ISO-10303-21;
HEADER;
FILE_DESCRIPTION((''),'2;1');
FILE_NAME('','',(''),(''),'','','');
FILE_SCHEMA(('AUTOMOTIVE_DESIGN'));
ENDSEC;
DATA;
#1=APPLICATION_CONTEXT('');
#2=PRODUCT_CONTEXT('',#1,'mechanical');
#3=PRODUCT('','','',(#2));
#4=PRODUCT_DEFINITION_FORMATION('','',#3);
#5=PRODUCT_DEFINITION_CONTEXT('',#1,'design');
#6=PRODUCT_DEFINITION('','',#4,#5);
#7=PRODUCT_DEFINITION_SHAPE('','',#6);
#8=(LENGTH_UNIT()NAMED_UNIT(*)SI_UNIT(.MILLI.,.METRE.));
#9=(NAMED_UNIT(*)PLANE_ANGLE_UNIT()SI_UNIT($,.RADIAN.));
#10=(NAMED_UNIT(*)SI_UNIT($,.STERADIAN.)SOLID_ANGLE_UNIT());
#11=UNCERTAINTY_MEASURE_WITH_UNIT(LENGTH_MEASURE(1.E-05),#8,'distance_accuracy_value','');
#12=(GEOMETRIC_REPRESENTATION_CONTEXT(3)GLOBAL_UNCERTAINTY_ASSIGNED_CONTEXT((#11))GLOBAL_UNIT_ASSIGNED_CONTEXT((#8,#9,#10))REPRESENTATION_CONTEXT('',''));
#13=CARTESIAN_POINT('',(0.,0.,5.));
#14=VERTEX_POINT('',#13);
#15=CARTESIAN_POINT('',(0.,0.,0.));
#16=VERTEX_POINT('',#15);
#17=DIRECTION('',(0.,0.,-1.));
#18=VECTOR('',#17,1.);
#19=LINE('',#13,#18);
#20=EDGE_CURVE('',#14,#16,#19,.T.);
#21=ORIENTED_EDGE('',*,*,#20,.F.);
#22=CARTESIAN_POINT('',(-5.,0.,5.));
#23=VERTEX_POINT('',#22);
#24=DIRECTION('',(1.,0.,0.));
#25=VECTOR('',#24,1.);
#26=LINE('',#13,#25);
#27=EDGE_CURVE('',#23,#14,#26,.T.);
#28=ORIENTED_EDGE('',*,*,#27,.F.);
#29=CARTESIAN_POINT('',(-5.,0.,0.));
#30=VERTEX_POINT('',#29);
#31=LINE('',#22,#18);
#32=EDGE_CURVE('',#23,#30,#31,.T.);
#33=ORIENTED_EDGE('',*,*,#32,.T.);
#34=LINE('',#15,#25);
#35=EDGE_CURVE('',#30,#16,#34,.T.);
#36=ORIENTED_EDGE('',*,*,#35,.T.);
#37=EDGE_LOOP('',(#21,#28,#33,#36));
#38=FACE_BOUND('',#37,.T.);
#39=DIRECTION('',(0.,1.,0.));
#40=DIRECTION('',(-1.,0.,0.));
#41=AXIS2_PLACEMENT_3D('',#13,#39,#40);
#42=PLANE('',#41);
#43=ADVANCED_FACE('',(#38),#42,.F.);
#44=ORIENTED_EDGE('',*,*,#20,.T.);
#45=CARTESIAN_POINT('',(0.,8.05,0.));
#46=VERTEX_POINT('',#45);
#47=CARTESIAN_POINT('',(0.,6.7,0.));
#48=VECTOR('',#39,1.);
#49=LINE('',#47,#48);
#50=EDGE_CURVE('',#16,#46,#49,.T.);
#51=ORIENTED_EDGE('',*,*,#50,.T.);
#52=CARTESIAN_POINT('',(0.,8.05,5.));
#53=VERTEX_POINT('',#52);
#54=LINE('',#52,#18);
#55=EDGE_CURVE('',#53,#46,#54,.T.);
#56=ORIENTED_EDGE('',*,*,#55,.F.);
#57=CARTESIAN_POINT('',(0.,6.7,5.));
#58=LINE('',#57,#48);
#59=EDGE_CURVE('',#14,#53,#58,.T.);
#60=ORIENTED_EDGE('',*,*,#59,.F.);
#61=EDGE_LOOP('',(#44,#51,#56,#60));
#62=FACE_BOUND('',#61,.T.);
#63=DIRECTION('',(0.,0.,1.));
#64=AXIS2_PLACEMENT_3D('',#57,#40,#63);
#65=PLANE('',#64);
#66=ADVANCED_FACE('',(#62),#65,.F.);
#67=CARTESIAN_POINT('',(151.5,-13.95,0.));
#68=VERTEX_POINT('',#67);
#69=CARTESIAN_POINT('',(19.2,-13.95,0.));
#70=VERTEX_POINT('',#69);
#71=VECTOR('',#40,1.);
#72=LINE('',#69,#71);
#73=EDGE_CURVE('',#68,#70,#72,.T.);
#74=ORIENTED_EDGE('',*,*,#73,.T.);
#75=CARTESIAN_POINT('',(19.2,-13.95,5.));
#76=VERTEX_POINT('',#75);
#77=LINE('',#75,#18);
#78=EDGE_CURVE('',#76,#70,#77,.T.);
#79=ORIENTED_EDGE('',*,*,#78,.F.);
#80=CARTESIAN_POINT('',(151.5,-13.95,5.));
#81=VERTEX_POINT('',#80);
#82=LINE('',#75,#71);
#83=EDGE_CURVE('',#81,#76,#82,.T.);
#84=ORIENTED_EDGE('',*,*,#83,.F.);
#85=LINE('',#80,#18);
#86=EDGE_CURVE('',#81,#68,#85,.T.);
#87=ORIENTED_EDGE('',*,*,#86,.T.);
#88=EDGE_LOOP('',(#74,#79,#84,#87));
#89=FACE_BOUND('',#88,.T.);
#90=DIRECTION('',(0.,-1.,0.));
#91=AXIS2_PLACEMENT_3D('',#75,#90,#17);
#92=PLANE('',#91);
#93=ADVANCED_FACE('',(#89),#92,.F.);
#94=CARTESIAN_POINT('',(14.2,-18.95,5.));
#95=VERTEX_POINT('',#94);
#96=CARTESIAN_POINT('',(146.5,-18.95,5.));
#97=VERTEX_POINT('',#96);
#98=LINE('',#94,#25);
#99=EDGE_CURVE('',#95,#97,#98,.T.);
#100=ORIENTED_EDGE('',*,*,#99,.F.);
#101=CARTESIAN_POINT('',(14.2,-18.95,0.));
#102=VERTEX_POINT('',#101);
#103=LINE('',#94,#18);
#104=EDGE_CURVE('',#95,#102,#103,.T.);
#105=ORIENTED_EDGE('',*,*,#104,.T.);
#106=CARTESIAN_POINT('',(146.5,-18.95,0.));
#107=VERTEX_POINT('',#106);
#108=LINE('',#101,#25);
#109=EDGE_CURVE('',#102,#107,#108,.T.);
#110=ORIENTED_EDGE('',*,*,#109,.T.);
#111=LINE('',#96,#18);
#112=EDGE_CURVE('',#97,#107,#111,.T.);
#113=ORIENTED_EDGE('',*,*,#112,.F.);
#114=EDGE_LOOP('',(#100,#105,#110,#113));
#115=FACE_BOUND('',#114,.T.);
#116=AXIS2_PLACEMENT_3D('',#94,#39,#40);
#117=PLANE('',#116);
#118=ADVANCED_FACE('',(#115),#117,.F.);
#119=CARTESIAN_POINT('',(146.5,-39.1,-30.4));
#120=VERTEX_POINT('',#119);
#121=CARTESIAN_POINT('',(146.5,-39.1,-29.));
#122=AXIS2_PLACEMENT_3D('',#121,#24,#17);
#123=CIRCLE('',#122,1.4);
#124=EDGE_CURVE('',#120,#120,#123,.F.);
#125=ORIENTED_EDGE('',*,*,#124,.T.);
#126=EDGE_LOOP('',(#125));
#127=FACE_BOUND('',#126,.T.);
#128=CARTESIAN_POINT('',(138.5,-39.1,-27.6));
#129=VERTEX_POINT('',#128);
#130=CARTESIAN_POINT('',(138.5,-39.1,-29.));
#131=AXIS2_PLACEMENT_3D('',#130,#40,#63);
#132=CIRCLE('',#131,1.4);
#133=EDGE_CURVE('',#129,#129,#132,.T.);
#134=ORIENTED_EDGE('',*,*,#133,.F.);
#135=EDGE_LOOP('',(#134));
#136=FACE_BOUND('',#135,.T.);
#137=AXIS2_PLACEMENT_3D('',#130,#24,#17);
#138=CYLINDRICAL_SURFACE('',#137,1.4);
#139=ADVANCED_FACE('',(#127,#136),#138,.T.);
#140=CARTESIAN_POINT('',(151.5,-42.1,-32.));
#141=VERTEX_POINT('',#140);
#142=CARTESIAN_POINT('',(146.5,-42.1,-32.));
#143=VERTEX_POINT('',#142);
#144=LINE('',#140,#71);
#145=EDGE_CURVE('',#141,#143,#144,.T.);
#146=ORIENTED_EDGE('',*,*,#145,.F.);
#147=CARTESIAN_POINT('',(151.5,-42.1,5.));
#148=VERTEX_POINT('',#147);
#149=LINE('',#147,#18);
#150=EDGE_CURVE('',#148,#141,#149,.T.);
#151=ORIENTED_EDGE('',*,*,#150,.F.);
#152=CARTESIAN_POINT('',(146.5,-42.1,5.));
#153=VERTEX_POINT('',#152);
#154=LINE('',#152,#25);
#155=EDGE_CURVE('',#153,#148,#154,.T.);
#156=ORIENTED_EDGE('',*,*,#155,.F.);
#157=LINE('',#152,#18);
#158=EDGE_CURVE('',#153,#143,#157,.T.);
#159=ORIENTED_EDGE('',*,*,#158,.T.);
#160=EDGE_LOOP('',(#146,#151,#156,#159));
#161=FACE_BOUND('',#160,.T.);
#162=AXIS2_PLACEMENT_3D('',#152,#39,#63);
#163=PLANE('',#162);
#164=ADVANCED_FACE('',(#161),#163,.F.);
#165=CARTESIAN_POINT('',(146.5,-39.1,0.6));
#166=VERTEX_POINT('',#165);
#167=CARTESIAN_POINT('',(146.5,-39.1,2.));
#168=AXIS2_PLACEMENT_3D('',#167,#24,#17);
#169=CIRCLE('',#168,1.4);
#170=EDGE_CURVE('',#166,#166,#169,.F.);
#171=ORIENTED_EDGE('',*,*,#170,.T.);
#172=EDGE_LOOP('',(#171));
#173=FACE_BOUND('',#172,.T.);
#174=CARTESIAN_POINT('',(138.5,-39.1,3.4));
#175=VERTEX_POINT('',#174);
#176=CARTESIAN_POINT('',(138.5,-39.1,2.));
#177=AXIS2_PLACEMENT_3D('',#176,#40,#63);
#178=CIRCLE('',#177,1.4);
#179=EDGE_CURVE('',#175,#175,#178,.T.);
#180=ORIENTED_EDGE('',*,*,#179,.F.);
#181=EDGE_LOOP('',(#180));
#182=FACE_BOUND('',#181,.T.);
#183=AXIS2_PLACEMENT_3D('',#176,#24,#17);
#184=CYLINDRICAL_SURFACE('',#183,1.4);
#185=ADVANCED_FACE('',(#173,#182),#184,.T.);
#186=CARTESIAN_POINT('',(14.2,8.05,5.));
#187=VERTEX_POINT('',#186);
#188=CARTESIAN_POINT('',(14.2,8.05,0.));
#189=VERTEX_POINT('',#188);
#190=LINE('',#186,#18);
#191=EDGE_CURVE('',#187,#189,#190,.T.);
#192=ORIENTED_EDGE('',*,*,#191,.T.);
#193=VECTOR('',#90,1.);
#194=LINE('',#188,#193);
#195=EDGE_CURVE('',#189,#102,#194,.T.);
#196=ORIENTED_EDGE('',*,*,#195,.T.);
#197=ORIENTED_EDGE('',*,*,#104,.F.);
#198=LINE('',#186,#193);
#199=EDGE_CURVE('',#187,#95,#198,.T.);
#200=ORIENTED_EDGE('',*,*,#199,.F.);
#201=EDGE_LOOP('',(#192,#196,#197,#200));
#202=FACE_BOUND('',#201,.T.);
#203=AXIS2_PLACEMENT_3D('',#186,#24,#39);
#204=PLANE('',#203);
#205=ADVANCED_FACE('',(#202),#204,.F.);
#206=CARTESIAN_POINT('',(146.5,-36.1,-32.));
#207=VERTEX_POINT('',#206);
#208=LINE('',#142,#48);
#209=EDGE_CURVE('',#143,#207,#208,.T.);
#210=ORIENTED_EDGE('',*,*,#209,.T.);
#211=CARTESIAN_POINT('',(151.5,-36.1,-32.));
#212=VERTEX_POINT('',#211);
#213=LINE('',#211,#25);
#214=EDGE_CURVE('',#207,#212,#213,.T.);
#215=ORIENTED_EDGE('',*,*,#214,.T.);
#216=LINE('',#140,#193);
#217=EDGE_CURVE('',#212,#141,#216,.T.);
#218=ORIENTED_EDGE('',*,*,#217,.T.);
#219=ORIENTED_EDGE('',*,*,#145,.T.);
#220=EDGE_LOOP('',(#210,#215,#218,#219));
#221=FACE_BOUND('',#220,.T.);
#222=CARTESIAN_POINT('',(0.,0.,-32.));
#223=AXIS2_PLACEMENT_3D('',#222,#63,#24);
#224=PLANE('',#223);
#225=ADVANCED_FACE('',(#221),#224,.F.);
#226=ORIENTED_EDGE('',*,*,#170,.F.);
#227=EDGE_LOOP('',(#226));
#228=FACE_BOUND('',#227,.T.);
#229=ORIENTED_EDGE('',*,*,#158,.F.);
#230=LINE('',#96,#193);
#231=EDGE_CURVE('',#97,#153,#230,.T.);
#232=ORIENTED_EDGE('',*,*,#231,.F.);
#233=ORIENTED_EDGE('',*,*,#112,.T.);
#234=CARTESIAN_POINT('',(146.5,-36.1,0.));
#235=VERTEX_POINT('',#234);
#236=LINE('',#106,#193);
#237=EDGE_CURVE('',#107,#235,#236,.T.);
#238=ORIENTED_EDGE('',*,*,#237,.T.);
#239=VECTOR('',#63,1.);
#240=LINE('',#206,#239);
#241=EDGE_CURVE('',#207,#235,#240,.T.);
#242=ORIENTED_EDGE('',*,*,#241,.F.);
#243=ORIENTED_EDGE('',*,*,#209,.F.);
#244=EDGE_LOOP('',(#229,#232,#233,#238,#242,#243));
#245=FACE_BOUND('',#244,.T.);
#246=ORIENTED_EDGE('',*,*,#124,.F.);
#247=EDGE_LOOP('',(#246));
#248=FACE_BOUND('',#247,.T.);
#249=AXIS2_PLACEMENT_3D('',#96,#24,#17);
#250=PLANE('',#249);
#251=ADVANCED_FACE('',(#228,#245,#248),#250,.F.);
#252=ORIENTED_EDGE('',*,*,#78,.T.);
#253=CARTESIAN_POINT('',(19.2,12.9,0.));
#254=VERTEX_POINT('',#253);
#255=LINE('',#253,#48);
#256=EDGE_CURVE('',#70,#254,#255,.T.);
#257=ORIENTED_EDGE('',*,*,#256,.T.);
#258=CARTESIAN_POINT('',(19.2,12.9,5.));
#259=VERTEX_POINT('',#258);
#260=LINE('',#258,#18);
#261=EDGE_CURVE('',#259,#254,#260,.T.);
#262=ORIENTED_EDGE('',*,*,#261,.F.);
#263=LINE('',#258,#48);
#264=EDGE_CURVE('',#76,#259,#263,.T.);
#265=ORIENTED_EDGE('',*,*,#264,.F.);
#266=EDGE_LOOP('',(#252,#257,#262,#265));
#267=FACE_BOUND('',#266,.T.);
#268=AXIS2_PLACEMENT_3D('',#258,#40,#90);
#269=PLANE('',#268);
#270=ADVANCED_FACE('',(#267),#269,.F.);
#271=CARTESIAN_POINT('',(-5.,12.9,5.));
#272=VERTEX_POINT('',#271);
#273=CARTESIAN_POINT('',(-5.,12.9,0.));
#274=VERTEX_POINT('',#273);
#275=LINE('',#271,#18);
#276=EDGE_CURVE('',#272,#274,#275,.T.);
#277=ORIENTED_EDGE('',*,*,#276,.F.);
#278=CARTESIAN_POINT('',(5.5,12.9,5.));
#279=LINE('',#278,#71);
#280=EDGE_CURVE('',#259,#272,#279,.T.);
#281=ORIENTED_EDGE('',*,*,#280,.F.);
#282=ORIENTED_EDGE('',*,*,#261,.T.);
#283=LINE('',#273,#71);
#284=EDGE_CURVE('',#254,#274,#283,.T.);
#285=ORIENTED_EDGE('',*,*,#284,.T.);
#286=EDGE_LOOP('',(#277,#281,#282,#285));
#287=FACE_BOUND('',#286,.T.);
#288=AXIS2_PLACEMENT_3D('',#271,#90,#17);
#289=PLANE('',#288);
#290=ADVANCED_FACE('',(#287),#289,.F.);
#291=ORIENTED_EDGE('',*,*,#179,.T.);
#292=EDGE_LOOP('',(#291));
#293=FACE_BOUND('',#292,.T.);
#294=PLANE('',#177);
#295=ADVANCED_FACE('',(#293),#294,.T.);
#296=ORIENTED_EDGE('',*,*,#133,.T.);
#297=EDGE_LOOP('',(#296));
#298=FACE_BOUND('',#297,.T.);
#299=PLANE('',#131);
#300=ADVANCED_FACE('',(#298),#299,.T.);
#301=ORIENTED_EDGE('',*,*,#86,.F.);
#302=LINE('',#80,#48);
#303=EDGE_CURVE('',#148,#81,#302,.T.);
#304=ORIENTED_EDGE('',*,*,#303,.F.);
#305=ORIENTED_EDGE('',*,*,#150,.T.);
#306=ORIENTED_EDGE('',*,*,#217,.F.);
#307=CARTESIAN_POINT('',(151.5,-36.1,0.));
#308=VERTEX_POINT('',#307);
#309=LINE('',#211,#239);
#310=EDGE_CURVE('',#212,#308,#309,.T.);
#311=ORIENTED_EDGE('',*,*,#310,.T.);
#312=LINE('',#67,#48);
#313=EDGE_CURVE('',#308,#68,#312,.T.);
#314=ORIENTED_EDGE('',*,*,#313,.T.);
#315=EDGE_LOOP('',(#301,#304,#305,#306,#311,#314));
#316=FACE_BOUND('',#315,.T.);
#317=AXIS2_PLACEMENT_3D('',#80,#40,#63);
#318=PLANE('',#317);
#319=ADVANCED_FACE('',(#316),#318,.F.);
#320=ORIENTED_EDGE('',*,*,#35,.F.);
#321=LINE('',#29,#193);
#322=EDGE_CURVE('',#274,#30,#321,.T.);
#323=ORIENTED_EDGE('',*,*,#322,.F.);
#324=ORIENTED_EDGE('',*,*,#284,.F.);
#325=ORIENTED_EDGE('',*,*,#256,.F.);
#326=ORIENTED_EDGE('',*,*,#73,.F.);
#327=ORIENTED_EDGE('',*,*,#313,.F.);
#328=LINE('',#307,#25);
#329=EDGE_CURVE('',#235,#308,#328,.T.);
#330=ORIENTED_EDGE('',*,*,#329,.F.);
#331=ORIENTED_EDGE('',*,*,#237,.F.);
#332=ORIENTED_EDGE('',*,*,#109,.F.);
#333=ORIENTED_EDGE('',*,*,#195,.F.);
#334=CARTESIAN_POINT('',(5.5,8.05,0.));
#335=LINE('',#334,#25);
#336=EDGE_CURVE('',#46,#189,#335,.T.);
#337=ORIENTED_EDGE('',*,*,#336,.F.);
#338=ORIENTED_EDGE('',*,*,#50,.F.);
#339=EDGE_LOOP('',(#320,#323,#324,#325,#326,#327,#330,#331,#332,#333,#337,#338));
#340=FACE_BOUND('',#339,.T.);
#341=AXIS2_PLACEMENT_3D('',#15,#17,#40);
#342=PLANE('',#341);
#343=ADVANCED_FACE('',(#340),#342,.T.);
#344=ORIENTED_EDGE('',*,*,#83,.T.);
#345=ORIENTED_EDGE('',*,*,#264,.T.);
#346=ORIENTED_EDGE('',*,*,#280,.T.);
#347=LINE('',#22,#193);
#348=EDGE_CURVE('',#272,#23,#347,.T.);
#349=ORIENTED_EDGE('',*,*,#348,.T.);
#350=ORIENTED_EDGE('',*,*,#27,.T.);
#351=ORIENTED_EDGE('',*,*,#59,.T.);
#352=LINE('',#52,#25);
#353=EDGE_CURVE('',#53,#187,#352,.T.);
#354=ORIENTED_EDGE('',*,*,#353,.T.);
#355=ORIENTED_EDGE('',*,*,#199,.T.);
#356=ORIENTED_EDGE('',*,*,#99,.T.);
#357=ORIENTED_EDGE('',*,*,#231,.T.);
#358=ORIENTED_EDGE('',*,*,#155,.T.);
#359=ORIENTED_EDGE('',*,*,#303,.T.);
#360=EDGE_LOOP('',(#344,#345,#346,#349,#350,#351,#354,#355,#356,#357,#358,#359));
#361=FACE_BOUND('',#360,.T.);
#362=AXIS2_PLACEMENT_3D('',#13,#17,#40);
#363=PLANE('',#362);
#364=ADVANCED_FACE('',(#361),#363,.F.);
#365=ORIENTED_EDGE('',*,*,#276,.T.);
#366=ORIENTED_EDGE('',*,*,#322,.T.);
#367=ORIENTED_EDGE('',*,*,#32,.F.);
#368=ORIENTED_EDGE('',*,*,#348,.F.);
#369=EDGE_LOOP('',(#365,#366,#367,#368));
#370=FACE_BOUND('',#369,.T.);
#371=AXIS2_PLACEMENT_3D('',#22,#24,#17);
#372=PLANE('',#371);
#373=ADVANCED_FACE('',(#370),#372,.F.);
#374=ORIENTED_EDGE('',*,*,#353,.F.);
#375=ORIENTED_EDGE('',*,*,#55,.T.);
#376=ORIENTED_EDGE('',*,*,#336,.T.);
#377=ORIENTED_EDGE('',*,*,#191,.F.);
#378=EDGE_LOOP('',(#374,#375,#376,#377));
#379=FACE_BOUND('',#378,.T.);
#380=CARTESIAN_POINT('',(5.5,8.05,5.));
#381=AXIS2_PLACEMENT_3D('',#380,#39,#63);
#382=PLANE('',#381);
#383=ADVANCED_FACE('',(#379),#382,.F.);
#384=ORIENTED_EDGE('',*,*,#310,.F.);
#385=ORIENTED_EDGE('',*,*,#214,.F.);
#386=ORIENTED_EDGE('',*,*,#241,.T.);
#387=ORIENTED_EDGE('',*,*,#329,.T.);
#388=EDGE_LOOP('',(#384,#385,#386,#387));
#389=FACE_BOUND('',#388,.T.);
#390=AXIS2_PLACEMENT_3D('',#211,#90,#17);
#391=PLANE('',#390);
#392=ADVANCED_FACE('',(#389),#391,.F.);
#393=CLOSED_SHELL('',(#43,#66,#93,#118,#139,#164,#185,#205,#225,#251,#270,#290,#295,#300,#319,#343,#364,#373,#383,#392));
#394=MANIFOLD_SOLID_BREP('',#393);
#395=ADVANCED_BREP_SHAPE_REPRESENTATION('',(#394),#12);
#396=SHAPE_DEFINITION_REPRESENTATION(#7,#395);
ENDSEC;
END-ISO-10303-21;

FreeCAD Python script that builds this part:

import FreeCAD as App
import Part
import Sketcher
from FreeCAD import Vector

doc = App.newDocument("Part")
body = doc.addObject("PartDesign::Body", "Body")

sketch1 = body.newObject("Sketcher::SketchObject", "Sketch")
sketch1.AttachmentSupport = (doc.getObject("XY_Plane"), [""])
sketch1.MapMode = "FlatFace"
sketch1.addGeometry([
    Part.LineSegment(Vector(0, 8, 0), Vector(14, 8, 0)),
    Part.LineSegment(Vector(14, 8, 0), Vector(14, -19, 0)),
    Part.LineSegment(Vector(14, -19, 0), Vector(146, -19, 0)),
    Part.LineSegment(Vector(146, -19, 0), Vector(146, -42, 0)),
    Part.LineSegment(Vector(146, -42, 0), Vector(152, -42, 0)),
    Part.LineSegment(Vector(152, -42, 0), Vector(152, -14, 0)),
    Part.LineSegment(Vector(152, -14, 0), Vector(19, -14, 0)),
    Part.LineSegment(Vector(19, -14, 0), Vector(19, 13, 0)),
    Part.LineSegment(Vector(19, 13, 0), Vector(-5, 13, 0)),
    Part.LineSegment(Vector(-5, 13, 0), Vector(-5, 0, 0)),
    Part.LineSegment(Vector(-5, 0, 0), Vector(0, 0, 0)),
    Part.LineSegment(Vector(0, 0, 0), Vector(0, 8, 0)),
], False)
sketch1.addConstraint([
    Sketcher.Constraint("Coincident", 0, 2, 1, 1),
    Sketcher.Constraint("Coincident", 1, 2, 2, 1),
    Sketcher.Constraint("Coincident", 2, 2, 3, 1),
    Sketcher.Constraint("Coincident", 3, 2, 4, 1),
    Sketcher.Constraint("Coincident", 4, 2, 5, 1),
    Sketcher.Constraint("Coincident", 5, 2, 6, 1),
    Sketcher.Constraint("Coincident", 6, 2, 7, 1),
    Sketcher.Constraint("Coincident", 7, 2, 8, 1),
    Sketcher.Constraint("Coincident", 8, 2, 9, 1),
    Sketcher.Constraint("Coincident", 9, 2, 10, 1),
    Sketcher.Constraint("Coincident", 10, 2, 11, 1),
    Sketcher.Constraint("Coincident", 11, 2, 0, 1),
    Sketcher.Constraint("Horizontal", 0),
    Sketcher.Constraint("Vertical", 1),
    Sketcher.Constraint("Horizontal", 2),
    Sketcher.Constraint("Vertical", 3),
    Sketcher.Constraint("Horizontal", 4),
    Sketcher.Constraint("Vertical", 5),
    Sketcher.Constraint("Horizontal", 6),
    Sketcher.Constraint("Vertical", 7),
    Sketcher.Constraint("Horizontal", 8),
    Sketcher.Constraint("Vertical", 9),
    Sketcher.Constraint("Horizontal", 10),
    Sketcher.Constraint("Vertical", 11),
    Sketcher.Constraint("Coincident", 10, 2, -1, 1),
    Sketcher.Constraint("Equal", 2, 6),
    Sketcher.Constraint("Equal", 4, 10),
    Sketcher.Constraint("DistanceX", 4, 1, 4, 2, 5.0),
    Sketcher.Constraint("DistanceY", 1, 2, 1, 1, 27.0),
    Sketcher.Constraint("DistanceX", 0, 1, 0, 2, 14.2),
    Sketcher.Constraint("DistanceX", 2, 1, 2, 2, 132.3),
    Sketcher.Constraint("DistanceY", 9, 2, 9, 1, 12.9),
    Sketcher.Constraint("DistanceY", 2, 2, 5, 2, 5.0),
    Sketcher.Constraint("DistanceY", 3, 2, 3, 1, 23.15),
    Sketcher.Constraint("DistanceY", 7, 1, 7, 2, 26.85),
])
pad1 = body.newObject("PartDesign::Pad", "Pad")
pad1.Profile = sketch1
pad1.Length = 5

sketch2 = body.newObject("Sketcher::SketchObject", "Sketch001")
sketch2.AttachmentSupport = (doc.getObject("XY_Plane"), [""])
sketch2.MapMode = "FlatFace"
sketch2.addGeometry([
    Part.LineSegment(Vector(152, -36, 0), Vector(152, -42, 0)),
    Part.LineSegment(Vector(152, -42, 0), Vector(146, -42, 0)),
    Part.LineSegment(Vector(146, -42, 0), Vector(146, -36, 0)),
    Part.LineSegment(Vector(146, -36, 0), Vector(152, -36, 0)),
], False)
sketch2.addConstraint([
    Sketcher.Constraint("Coincident", 0, 2, 1, 1),
    Sketcher.Constraint("Coincident", 1, 2, 2, 1),
    Sketcher.Constraint("Coincident", 2, 2, 3, 1),
    Sketcher.Constraint("Coincident", 3, 2, 0, 1),
    Sketcher.Constraint("Vertical", 0),
    Sketcher.Constraint("Horizontal", 1),
    Sketcher.Constraint("Vertical", 2),
    Sketcher.Constraint("Horizontal", 3),
    Sketcher.Constraint("DistanceX", 1, 2, 1, 1, 5.0),
    Sketcher.Constraint("DistanceY", 0, 2, 0, 1, 6.0),
    Sketcher.Constraint("DistanceX", -1, 1, 0, 2, 151.5),
    Sketcher.Constraint("DistanceY", 0, 2, -1, 1, 42.1),
])
pad2 = body.newObject("PartDesign::Pad", "Pad001")
pad2.Profile = sketch2
pad2.Length = 32
pad2.Reversed = True

sketch3 = body.newObject("Sketcher::SketchObject", "Sketch002")
sketch3.AttachmentSupport = (doc.getObject("YZ_Plane"), [""])
sketch3.MapMode = "FlatFace"
sketch3.AttachmentOffset = App.Placement(Vector(0, 0, 146.5), App.Rotation())
sketch3.addGeometry([
    Part.Circle(Vector(-39.1, -29, 0), Vector(0, 0, 1), 1.4),
    Part.Circle(Vector(-39.1, 2, 0), Vector(0, 0, 1), 1.4),
], False)
sketch3.addConstraint([
    Sketcher.Constraint("Equal", 0, 1),
    Sketcher.Constraint("Vertical", 0, 3, 1, 3),
    Sketcher.Constraint("Diameter", 0, 2.8),
    Sketcher.Constraint("DistanceY", 0, 3, -1, 1, 29.0),
    Sketcher.Constraint("DistanceY", -1, 1, 1, 3, 2.0),
    Sketcher.Constraint("DistanceX", 0, 3, -1, 1, 39.1),
])
pad3 = body.newObject("PartDesign::Pad", "Pad002")
pad3.Profile = sketch3
pad3.Length = 8
pad3.Reversed = True

doc.recompute()
